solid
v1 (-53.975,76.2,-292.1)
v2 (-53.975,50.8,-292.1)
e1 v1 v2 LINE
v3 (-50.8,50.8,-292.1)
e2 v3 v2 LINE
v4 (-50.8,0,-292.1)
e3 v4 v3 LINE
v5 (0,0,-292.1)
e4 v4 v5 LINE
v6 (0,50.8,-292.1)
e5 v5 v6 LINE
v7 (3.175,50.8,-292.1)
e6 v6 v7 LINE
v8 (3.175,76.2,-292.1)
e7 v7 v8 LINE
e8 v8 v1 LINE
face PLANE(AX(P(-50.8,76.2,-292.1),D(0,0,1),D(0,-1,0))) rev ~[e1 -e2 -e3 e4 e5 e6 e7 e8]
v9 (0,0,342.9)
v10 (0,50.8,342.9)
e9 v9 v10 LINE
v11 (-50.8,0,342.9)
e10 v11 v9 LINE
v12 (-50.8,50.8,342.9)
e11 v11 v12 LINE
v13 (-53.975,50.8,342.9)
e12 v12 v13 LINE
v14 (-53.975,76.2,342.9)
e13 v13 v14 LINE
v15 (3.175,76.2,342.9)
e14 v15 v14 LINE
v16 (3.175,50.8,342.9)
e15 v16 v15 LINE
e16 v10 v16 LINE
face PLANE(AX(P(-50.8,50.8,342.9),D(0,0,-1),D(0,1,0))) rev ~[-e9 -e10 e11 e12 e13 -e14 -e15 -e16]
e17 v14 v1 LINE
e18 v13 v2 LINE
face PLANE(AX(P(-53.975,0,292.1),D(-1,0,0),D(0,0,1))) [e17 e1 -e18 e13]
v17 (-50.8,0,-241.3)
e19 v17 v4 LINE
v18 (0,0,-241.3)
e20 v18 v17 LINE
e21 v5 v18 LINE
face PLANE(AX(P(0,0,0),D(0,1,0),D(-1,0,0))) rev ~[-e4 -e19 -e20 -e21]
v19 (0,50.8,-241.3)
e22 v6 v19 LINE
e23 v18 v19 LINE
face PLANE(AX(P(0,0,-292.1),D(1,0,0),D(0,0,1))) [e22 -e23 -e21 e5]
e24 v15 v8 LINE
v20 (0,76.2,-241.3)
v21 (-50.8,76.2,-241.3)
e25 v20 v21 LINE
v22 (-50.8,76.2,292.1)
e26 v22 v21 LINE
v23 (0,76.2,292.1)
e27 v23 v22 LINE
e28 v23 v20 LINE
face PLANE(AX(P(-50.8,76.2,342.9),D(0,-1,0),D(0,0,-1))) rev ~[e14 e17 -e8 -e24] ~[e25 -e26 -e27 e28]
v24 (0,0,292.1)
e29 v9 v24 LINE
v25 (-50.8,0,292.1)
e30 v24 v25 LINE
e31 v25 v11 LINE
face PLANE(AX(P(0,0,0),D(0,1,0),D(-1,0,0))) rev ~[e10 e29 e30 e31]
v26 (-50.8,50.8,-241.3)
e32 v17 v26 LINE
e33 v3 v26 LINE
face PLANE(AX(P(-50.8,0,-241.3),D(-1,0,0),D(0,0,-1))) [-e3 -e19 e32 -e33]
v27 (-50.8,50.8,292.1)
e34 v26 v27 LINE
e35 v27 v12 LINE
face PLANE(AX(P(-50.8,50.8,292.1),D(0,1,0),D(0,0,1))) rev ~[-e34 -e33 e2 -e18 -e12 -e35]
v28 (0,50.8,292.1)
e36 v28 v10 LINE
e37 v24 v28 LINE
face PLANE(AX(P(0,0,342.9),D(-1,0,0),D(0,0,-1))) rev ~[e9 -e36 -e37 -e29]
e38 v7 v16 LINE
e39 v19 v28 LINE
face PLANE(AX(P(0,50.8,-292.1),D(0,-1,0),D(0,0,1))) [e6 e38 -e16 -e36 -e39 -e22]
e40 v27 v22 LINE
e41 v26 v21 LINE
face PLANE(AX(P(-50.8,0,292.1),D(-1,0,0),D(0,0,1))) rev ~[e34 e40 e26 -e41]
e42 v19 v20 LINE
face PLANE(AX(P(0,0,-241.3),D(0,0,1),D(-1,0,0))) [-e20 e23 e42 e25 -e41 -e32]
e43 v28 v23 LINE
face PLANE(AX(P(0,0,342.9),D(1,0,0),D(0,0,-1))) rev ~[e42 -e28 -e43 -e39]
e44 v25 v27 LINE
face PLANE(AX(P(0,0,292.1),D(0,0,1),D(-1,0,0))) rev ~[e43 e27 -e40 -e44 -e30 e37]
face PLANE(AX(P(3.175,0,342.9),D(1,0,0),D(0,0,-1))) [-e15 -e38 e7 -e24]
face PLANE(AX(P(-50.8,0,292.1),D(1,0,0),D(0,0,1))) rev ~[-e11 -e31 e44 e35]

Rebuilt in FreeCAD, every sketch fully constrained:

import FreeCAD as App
import Part
import Sketcher

V = App.Vector
Q = App.Units.Quantity


def add_polygon(sketch, points):
    """Adds a closed chain of lines whose ends are joined by coincident constraints."""
    first, n = sketch.GeometryCount, len(points)
    for a, b in zip(points, points[1:] + points[:1]):
        sketch.addGeometry(Part.LineSegment(App.Vector(*a, 0), App.Vector(*b, 0)), False)
    for i in range(n):
        sketch.addConstraint(Sketcher.Constraint("Coincident", first + i, 2, first + (i + 1) % n, 1))

doc = App.newDocument("Part")
params = doc.addObject("Spreadsheet::Sheet", "Params")
for row, (alias, value) in enumerate([
    ("sketch1_width", "2 in"),
    ("pad1_length", "3 in"),
    ("sketch2_width", "1 in"),
    ("sketch2_height", "25 in"),
    ("pad2_length", "0.125 in"),
    ("sketch3_height", "25 in"),
    ("sketch3_width", "1 in"),
    ("pad3_length", "0.125 in"),
], start=1):
    params.set(f"A{row}", alias)
    params.set(f"B{row}", "=" + value)
    params.setAlias(f"B{row}", alias)

body = doc.addObject("PartDesign::Body", "Body")
body.AllowCompound = True

sketch1 = body.newObject("Sketcher::SketchObject", "Sketch")
sketch1.AttachmentSupport = (doc.getObject("XZ_Plane"), [""])
sketch1.MapMode = "FlatFace"
add_polygon(sketch1, [(-50.8, 292.1), (-50.8, 342.9), (0, 342.9), (0, 292.1)])
add_polygon(sketch1, [(0, -292.1), (-50.8, -292.1), (-50.8, -241.3), (0, -241.3)])
sketch1.addConstraint(Sketcher.Constraint("Vertical", 0))
sketch1.addConstraint(Sketcher.Constraint("Horizontal", 1))
sketch1.addConstraint(Sketcher.Constraint("Vertical", 2))
sketch1.addConstraint(Sketcher.Constraint("Horizontal", 3))
sketch1.addConstraint(Sketcher.Constraint("Horizontal", 4))
sketch1.addConstraint(Sketcher.Constraint("Vertical", 5))
sketch1.addConstraint(Sketcher.Constraint("Horizontal", 6))
sketch1.addConstraint(Sketcher.Constraint("Vertical", 7))
sketch1.addConstraint(Sketcher.Constraint("Symmetric", 2, 2, 7, 2, -1, 1))
sketch1.addConstraint(Sketcher.Constraint("PointOnObject", 1, 2, -2))
sketch1.addConstraint(Sketcher.Constraint("Vertical", 3, 2, 4, 2))
sketch1.addConstraint(Sketcher.Constraint("Equal", 6, 0))
sketch1.addConstraint(Sketcher.Constraint("Equal", 2, 5))
sketch1.addConstraint(Sketcher.Constraint("DistanceX", 1, 1, 1, 2, Q("2 in")))
sketch1.addConstraint(Sketcher.Constraint("DistanceY", 5, 2, 3, 2, Q("21 in")))
sketch1.setExpression("Constraints[21]", "Params.sketch1_width")
pad1 = body.newObject("PartDesign::Pad", "Pad")
pad1.Profile = sketch1
pad1.setExpression("Length", "Params.pad1_length")
pad1.Reversed = True

sketch2 = body.newObject("Sketcher::SketchObject", "Sketch001")
sketch2.AttachmentSupport = (doc.getObject("YZ_Plane"), [""])
sketch2.MapMode = "FlatFace"
add_polygon(sketch2, [(76.2, -292.1), (76.2, 342.9), (50.8, 342.9), (50.8, -292.1)])
sketch2.addConstraint(Sketcher.Constraint("Vertical", 0))
sketch2.addConstraint(Sketcher.Constraint("Horizontal", 1))
sketch2.addConstraint(Sketcher.Constraint("Vertical", 2))
sketch2.addConstraint(Sketcher.Constraint("Horizontal", 3))
sketch2.addConstraint(Sketcher.Constraint("DistanceX", 1, 2, 1, 1, Q("1 in")))
sketch2.addConstraint(Sketcher.Constraint("DistanceY", 0, 1, 0, 2, Q("25 in")))
sketch2.addConstraint(Sketcher.Constraint("DistanceX", -1, 1, 0, 2, Q("3 in")))
sketch2.addConstraint(Sketcher.Constraint("DistanceY", -1, 1, 0, 2, Q("13.5 in")))
sketch2.setExpression("Constraints[8]", "Params.sketch2_width")
sketch2.setExpression("Constraints[9]", "Params.sketch2_height")
pad2 = body.newObject("PartDesign::Pad", "Pad001")
pad2.Profile = sketch2
pad2.setExpression("Length", "Params.pad2_length")

sketch3 = body.newObject("Sketcher::SketchObject", "Sketch002")
sketch3.AttachmentSupport = (doc.getObject("YZ_Plane"), [""])
sketch3.MapMode = "FlatFace"
sketch3.AttachmentOffset = App.Placement(V(0, 0, -2 * 25.4), App.Rotation())
add_polygon(sketch3, [(50.8, 342.9), (76.2, 342.9), (76.2, -292.1), (50.8, -292.1)])
sketch3.addConstraint(Sketcher.Constraint("Horizontal", 0))
sketch3.addConstraint(Sketcher.Constraint("Vertical", 1))
sketch3.addConstraint(Sketcher.Constraint("Horizontal", 2))
sketch3.addConstraint(Sketcher.Constraint("Vertical", 3))
sketch3.addConstraint(Sketcher.Constraint("DistanceY", 1, 2, 1, 1, Q("25 in")))
sketch3.addConstraint(Sketcher.Constraint("DistanceX", 0, 1, 0, 2, Q("1 in")))
sketch3.addConstraint(Sketcher.Constraint("DistanceX", -1, 1, 0, 2, Q("3 in")))
sketch3.addConstraint(Sketcher.Constraint("DistanceY", -1, 1, 0, 2, Q("13.5 in")))
sketch3.setExpression("Constraints[8]", "Params.sketch3_height")
sketch3.setExpression("Constraints[9]", "Params.sketch3_width")
pad3 = body.newObject("PartDesign::Pad", "Pad002")
pad3.Profile = sketch3
pad3.setExpression("Length", "Params.pad3_length")
pad3.Reversed = True

doc.recompute()
